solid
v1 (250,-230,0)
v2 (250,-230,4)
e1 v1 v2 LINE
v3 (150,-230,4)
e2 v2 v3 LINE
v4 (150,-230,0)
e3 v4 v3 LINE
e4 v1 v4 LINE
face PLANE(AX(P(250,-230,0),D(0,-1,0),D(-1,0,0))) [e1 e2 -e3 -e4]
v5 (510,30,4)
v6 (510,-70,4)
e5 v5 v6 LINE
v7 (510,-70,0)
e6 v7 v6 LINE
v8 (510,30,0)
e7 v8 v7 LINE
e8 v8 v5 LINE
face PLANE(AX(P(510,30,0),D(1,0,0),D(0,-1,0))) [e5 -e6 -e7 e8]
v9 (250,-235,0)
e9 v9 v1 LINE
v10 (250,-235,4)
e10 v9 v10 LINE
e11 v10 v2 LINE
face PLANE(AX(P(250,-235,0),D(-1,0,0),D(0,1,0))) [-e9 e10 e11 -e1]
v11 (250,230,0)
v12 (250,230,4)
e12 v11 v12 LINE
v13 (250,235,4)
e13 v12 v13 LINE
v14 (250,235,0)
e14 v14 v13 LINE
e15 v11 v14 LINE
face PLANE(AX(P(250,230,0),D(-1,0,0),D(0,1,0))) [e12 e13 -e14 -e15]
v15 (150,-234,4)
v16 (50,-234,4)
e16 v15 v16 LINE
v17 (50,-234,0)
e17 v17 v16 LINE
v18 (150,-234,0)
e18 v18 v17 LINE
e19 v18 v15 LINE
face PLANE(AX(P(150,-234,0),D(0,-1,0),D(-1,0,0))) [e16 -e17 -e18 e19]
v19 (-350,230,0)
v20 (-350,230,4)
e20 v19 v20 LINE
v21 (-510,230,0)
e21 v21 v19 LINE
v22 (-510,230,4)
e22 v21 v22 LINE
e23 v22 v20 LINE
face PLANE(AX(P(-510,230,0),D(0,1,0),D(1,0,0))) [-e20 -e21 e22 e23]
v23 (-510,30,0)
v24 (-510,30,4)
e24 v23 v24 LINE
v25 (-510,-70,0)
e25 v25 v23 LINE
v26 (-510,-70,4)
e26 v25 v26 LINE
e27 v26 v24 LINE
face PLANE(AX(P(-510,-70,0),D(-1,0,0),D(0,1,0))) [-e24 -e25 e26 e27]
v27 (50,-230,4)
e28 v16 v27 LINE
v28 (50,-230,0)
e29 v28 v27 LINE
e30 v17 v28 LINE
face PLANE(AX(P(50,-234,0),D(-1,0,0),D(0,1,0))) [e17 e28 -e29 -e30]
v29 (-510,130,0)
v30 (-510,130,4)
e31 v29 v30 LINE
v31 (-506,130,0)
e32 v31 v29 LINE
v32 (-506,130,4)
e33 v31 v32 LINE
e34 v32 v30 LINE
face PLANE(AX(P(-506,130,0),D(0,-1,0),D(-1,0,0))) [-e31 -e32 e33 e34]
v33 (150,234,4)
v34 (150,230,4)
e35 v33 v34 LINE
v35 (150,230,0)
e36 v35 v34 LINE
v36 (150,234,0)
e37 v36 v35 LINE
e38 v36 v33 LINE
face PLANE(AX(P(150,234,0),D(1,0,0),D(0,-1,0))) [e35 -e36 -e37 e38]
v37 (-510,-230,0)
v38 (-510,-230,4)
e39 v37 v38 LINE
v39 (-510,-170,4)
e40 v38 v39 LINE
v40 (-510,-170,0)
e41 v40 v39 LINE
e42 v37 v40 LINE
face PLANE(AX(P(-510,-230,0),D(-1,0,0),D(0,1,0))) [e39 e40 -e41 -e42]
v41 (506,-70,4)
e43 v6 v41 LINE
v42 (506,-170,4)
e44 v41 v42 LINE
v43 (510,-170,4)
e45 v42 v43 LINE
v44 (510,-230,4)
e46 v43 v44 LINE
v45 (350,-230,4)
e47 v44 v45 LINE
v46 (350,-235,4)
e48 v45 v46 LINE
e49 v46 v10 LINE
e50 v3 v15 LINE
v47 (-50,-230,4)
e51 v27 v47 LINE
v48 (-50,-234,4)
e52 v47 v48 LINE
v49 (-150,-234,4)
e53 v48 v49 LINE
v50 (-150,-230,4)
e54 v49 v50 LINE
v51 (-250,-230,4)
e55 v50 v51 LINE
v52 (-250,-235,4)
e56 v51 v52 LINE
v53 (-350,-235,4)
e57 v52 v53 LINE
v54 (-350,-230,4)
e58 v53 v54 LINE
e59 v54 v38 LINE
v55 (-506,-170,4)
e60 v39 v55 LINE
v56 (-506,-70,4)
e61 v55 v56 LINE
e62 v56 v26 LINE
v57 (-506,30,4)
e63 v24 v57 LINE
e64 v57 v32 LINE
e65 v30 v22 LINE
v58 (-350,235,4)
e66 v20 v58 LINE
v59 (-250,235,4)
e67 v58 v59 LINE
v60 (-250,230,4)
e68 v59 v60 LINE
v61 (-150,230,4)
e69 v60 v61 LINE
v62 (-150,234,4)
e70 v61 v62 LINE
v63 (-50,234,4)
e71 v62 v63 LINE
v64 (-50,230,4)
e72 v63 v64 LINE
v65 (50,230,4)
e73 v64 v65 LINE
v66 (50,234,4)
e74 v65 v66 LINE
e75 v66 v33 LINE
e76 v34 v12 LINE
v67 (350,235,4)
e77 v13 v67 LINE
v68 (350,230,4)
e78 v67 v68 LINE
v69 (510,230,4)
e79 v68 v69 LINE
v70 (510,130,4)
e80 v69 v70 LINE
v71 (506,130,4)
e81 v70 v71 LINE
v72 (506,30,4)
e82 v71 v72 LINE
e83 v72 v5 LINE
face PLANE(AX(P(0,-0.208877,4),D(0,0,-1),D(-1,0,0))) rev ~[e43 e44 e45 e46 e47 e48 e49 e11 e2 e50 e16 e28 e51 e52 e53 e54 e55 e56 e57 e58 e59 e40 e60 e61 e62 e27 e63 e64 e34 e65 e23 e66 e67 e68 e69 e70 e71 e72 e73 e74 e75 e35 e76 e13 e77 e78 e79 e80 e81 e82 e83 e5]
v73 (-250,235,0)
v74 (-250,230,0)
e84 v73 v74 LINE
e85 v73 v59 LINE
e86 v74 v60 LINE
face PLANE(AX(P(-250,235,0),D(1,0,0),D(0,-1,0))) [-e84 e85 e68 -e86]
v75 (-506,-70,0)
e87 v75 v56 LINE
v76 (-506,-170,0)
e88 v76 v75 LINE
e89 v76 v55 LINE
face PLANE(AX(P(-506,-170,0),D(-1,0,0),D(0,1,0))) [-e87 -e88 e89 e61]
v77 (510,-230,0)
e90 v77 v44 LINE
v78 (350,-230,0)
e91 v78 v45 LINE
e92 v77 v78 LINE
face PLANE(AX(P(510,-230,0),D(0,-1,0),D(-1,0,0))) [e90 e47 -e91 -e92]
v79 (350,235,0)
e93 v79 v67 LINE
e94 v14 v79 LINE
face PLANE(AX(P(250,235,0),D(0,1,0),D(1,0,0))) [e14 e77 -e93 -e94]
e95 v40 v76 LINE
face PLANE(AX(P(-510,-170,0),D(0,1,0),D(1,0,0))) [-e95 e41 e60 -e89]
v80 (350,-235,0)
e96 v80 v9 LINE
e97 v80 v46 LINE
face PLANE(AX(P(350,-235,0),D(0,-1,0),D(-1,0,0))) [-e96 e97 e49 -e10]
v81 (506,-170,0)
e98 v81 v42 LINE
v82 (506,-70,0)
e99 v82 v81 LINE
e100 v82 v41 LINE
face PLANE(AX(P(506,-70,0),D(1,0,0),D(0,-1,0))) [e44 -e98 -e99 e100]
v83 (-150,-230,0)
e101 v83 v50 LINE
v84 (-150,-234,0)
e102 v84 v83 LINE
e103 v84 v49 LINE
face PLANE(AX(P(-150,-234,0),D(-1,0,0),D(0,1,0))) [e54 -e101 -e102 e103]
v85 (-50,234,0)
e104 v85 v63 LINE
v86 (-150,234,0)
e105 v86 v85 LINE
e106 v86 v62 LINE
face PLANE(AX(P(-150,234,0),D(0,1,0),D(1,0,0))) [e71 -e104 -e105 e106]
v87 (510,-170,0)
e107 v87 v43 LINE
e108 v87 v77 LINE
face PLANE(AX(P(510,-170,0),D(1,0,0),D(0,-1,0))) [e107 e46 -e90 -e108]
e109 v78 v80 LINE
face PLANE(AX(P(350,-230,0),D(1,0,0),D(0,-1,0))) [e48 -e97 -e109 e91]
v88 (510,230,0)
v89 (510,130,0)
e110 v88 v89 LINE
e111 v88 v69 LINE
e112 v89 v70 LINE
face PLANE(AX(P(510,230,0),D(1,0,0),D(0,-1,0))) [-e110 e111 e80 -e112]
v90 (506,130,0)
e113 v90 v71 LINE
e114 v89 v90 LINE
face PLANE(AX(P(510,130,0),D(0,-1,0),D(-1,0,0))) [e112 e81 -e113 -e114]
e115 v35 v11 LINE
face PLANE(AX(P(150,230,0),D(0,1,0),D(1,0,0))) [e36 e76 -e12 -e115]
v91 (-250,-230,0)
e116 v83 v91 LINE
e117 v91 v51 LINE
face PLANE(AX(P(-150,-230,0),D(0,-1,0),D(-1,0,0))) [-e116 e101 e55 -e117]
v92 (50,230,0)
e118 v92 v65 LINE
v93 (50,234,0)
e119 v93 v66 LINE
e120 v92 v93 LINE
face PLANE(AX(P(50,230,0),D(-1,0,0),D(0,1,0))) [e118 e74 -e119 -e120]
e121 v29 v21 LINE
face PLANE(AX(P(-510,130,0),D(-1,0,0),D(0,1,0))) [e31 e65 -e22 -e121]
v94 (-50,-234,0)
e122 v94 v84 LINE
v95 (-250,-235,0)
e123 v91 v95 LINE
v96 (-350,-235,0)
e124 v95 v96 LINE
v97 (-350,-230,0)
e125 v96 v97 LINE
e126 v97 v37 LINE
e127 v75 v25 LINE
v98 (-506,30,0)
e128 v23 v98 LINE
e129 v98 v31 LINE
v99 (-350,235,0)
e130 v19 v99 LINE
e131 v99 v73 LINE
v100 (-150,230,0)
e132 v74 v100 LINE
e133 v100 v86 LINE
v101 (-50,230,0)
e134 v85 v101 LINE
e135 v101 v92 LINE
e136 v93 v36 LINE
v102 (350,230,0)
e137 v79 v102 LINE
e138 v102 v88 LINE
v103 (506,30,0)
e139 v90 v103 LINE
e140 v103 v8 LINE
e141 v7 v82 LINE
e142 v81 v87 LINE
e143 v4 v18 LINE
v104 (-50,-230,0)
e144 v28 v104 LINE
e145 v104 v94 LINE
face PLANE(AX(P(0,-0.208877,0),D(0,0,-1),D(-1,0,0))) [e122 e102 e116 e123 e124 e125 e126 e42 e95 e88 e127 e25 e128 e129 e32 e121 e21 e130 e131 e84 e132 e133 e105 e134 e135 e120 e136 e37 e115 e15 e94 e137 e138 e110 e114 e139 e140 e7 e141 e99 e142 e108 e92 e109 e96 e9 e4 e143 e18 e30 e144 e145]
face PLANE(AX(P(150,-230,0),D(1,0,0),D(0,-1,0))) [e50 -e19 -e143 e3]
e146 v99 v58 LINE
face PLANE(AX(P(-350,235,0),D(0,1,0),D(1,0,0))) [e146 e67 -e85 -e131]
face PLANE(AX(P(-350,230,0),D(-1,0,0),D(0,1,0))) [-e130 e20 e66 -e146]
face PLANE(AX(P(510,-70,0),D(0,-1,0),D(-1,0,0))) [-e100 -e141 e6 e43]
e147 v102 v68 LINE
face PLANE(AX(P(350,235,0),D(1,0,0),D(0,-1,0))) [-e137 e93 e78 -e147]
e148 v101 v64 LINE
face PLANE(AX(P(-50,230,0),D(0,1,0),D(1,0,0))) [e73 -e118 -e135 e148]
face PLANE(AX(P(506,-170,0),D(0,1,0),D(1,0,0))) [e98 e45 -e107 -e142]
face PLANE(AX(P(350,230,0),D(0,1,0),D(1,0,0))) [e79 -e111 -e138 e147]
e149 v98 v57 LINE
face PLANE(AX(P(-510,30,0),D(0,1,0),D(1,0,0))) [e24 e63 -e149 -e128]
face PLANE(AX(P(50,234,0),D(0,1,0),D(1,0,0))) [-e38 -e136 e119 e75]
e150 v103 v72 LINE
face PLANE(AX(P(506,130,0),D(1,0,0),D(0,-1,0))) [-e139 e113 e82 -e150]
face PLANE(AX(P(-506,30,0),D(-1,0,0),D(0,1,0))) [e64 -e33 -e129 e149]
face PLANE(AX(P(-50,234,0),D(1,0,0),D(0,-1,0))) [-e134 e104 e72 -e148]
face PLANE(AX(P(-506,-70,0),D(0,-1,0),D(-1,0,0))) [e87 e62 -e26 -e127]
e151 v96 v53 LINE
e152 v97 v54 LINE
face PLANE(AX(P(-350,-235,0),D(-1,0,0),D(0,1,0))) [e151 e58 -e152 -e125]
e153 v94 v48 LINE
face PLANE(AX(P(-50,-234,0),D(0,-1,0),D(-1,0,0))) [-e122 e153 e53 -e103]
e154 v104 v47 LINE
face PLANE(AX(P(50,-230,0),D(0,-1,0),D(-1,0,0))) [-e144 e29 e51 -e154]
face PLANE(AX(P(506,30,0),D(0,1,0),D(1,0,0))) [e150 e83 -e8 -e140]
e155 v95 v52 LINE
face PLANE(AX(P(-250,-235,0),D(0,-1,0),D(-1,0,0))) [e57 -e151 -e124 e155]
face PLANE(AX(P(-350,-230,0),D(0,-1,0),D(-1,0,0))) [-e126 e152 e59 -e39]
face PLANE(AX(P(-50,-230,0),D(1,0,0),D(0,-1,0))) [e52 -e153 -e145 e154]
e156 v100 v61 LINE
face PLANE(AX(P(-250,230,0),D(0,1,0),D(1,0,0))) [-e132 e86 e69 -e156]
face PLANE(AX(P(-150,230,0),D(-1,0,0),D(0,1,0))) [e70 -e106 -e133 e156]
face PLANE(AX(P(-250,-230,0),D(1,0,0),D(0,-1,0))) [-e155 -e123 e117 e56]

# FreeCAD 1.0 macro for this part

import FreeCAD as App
import Part
import Sketcher
from FreeCAD import Vector


def add_polygon(sketch, points):
    """Adds a closed chain of lines whose ends are joined by coincident constraints."""
    first, n = sketch.GeometryCount, len(points)
    for a, b in zip(points, points[1:] + points[:1]):
        sketch.addGeometry(Part.LineSegment(App.Vector(*a, 0), App.Vector(*b, 0)), False)
    for i in range(n):
        sketch.addConstraint(Sketcher.Constraint("Coincident", first + i, 2, first + (i + 1) % n, 1))

doc = App.newDocument("Part")
body = doc.addObject("PartDesign::Body", "Body")

sketch1 = doc.addObject("Sketcher::SketchObject", "Sketch")
body.addObject(sketch1)
sketch1.AttachmentSupport = (doc.XY_Plane, [""])
sketch1.MapMode = "FlatFace"
add_polygon(sketch1, [(-350, 230), (-510, 230), (-510, 130), (-506, 130), (-506, 30), (-510, 30), (-510, -70), (-506, -70), (-506, -170), (-510, -170), (-510, -230), (-350, -230), (-350, -235), (-250, -235), (-250, -230), (-150, -230), (-150, -234), (-50, -234), (-50, -230), (50, -230), (50, -234), (150, -234), (150, -230), (250, -230), (250, -235), (350, -235), (350, -230), (510, -230), (510, -170), (506, -170), (506, -70), (510, -70), (510, 30), (506, 30), (506, 130), (510, 130), (510, 230), (350, 230), (350, 235), (250, 235), (250, 230), (150, 230), (150, 234), (50, 234), (50, 230), (-50, 230), (-50, 234), (-150, 234), (-150, 230), (-250, 230), (-250, 235), (-350, 235)])
sketch1.addConstraint([
    Sketcher.Constraint("Horizontal", 0),
    Sketcher.Constraint("Vertical", 1),
    Sketcher.Constraint("Horizontal", 2),
    Sketcher.Constraint("Vertical", 3),
    Sketcher.Constraint("Horizontal", 4),
    Sketcher.Constraint("Vertical", 5),
    Sketcher.Constraint("Horizontal", 6),
    Sketcher.Constraint("Vertical", 7),
    Sketcher.Constraint("Horizontal", 8),
    Sketcher.Constraint("Vertical", 9),
    Sketcher.Constraint("Horizontal", 10),
    Sketcher.Constraint("Vertical", 11),
    Sketcher.Constraint("Horizontal", 12),
    Sketcher.Constraint("Vertical", 13),
    Sketcher.Constraint("Horizontal", 14),
    Sketcher.Constraint("Vertical", 15),
    Sketcher.Constraint("Horizontal", 16),
    Sketcher.Constraint("Vertical", 17),
    Sketcher.Constraint("Horizontal", 18),
    Sketcher.Constraint("Vertical", 19),
    Sketcher.Constraint("Horizontal", 20),
    Sketcher.Constraint("Vertical", 21),
    Sketcher.Constraint("Horizontal", 22),
    Sketcher.Constraint("Vertical", 23),
    Sketcher.Constraint("Horizontal", 24),
    Sketcher.Constraint("Vertical", 25),
    Sketcher.Constraint("Horizontal", 26),
    Sketcher.Constraint("Vertical", 27),
    Sketcher.Constraint("Horizontal", 28),
    Sketcher.Constraint("Vertical", 29),
    Sketcher.Constraint("Horizontal", 30),
    Sketcher.Constraint("Vertical", 31),
    Sketcher.Constraint("Horizontal", 32),
    Sketcher.Constraint("Vertical", 33),
    Sketcher.Constraint("Horizontal", 34),
    Sketcher.Constraint("Vertical", 35),
    Sketcher.Constraint("Horizontal", 36),
    Sketcher.Constraint("Vertical", 37),
    Sketcher.Constraint("Horizontal", 38),
    Sketcher.Constraint("Vertical", 39),
    Sketcher.Constraint("Horizontal", 40),
    Sketcher.Constraint("Vertical", 41),
    Sketcher.Constraint("Horizontal", 42),
    Sketcher.Constraint("Vertical", 43),
    Sketcher.Constraint("Horizontal", 44),
    Sketcher.Constraint("Vertical", 45),
    Sketcher.Constraint("Horizontal", 46),
    Sketcher.Constraint("Vertical", 47),
    Sketcher.Constraint("Horizontal", 48),
    Sketcher.Constraint("Vertical", 49),
    Sketcher.Constraint("Horizontal", 50),
    Sketcher.Constraint("Vertical", 51),
    Sketcher.Constraint("Symmetric", 0, 2, 26, 2, -1, 1),
    Sketcher.Constraint("Symmetric", 9, 2, 35, 2, -1, 1),
    Sketcher.Constraint("Symmetric", 11, 2, 37, 2, -1, 1),
    Sketcher.Constraint("Symmetric", 13, 2, 39, 2, -1, 1),
    Sketcher.Constraint("Symmetric", 15, 2, 41, 2, -1, 1),
    Sketcher.Constraint("Symmetric", 17, 2, 43, 2, -1, 1),
    Sketcher.Constraint("Symmetric", 19, 2, 45, 2, -1, 1),
    Sketcher.Constraint("Symmetric", 21, 2, 47, 2, -1, 1),
    Sketcher.Constraint("Symmetric", 23, 2, 49, 2, -1, 1),
    Sketcher.Constraint("Symmetric", 16, 2, 19, 2, -2),
    Sketcher.Constraint("Symmetric", 14, 2, 21, 2, -2),
    Sketcher.Constraint("Symmetric", 12, 2, 23, 2, -2),
    Sketcher.Constraint("Symmetric", 10, 2, 25, 2, -2),
    Sketcher.Constraint("Symmetric", 8, 2, 27, 2, -2),
    Sketcher.Constraint("Symmetric", 6, 2, 29, 2, -2),
    Sketcher.Constraint("Symmetric", 4, 2, 31, 2, -2),
    Sketcher.Constraint("Symmetric", 2, 2, 33, 2, -2),
    Sketcher.Constraint("Horizontal", 10, 2, 13, 2),
    Sketcher.Constraint("Horizontal", 14, 2, 17, 2),
    Sketcher.Constraint("Vertical", 1, 2, 4, 2),
    Sketcher.Constraint("Vertical", 3, 2, 6, 2),
    Sketcher.Constraint("Vertical", 11, 2, 50, 2),
    Sketcher.Constraint("Equal", 12, 14),
    Sketcher.Constraint("Equal", 14, 16),
    Sketcher.Constraint("Equal", 16, 18),
    Sketcher.Constraint("Equal", 50, 1),
    Sketcher.Constraint("Equal", 1, 3),
    Sketcher.Constraint("Equal", 3, 5),
    Sketcher.Constraint("Equal", 5, 7),
    Sketcher.Constraint("Equal", 34, 15),
    Sketcher.Constraint("DistanceX", 0, 2, 0, 1, 160.0),
    Sketcher.Constraint("DistanceX", 2, 1, 2, 2, 4.0),
    Sketcher.Constraint("DistanceX", 12, 1, 12, 2, 100.0),
    Sketcher.Constraint("DistanceY", 9, 2, 9, 1, 60.0),
    Sketcher.Constraint("DistanceY", 11, 2, 11, 1, 5.0),
])
pad1 = doc.addObject("PartDesign::Pad", "Pad")
body.addObject(pad1)
pad1.Profile = sketch1
pad1.Length = 4

doc.recompute()
